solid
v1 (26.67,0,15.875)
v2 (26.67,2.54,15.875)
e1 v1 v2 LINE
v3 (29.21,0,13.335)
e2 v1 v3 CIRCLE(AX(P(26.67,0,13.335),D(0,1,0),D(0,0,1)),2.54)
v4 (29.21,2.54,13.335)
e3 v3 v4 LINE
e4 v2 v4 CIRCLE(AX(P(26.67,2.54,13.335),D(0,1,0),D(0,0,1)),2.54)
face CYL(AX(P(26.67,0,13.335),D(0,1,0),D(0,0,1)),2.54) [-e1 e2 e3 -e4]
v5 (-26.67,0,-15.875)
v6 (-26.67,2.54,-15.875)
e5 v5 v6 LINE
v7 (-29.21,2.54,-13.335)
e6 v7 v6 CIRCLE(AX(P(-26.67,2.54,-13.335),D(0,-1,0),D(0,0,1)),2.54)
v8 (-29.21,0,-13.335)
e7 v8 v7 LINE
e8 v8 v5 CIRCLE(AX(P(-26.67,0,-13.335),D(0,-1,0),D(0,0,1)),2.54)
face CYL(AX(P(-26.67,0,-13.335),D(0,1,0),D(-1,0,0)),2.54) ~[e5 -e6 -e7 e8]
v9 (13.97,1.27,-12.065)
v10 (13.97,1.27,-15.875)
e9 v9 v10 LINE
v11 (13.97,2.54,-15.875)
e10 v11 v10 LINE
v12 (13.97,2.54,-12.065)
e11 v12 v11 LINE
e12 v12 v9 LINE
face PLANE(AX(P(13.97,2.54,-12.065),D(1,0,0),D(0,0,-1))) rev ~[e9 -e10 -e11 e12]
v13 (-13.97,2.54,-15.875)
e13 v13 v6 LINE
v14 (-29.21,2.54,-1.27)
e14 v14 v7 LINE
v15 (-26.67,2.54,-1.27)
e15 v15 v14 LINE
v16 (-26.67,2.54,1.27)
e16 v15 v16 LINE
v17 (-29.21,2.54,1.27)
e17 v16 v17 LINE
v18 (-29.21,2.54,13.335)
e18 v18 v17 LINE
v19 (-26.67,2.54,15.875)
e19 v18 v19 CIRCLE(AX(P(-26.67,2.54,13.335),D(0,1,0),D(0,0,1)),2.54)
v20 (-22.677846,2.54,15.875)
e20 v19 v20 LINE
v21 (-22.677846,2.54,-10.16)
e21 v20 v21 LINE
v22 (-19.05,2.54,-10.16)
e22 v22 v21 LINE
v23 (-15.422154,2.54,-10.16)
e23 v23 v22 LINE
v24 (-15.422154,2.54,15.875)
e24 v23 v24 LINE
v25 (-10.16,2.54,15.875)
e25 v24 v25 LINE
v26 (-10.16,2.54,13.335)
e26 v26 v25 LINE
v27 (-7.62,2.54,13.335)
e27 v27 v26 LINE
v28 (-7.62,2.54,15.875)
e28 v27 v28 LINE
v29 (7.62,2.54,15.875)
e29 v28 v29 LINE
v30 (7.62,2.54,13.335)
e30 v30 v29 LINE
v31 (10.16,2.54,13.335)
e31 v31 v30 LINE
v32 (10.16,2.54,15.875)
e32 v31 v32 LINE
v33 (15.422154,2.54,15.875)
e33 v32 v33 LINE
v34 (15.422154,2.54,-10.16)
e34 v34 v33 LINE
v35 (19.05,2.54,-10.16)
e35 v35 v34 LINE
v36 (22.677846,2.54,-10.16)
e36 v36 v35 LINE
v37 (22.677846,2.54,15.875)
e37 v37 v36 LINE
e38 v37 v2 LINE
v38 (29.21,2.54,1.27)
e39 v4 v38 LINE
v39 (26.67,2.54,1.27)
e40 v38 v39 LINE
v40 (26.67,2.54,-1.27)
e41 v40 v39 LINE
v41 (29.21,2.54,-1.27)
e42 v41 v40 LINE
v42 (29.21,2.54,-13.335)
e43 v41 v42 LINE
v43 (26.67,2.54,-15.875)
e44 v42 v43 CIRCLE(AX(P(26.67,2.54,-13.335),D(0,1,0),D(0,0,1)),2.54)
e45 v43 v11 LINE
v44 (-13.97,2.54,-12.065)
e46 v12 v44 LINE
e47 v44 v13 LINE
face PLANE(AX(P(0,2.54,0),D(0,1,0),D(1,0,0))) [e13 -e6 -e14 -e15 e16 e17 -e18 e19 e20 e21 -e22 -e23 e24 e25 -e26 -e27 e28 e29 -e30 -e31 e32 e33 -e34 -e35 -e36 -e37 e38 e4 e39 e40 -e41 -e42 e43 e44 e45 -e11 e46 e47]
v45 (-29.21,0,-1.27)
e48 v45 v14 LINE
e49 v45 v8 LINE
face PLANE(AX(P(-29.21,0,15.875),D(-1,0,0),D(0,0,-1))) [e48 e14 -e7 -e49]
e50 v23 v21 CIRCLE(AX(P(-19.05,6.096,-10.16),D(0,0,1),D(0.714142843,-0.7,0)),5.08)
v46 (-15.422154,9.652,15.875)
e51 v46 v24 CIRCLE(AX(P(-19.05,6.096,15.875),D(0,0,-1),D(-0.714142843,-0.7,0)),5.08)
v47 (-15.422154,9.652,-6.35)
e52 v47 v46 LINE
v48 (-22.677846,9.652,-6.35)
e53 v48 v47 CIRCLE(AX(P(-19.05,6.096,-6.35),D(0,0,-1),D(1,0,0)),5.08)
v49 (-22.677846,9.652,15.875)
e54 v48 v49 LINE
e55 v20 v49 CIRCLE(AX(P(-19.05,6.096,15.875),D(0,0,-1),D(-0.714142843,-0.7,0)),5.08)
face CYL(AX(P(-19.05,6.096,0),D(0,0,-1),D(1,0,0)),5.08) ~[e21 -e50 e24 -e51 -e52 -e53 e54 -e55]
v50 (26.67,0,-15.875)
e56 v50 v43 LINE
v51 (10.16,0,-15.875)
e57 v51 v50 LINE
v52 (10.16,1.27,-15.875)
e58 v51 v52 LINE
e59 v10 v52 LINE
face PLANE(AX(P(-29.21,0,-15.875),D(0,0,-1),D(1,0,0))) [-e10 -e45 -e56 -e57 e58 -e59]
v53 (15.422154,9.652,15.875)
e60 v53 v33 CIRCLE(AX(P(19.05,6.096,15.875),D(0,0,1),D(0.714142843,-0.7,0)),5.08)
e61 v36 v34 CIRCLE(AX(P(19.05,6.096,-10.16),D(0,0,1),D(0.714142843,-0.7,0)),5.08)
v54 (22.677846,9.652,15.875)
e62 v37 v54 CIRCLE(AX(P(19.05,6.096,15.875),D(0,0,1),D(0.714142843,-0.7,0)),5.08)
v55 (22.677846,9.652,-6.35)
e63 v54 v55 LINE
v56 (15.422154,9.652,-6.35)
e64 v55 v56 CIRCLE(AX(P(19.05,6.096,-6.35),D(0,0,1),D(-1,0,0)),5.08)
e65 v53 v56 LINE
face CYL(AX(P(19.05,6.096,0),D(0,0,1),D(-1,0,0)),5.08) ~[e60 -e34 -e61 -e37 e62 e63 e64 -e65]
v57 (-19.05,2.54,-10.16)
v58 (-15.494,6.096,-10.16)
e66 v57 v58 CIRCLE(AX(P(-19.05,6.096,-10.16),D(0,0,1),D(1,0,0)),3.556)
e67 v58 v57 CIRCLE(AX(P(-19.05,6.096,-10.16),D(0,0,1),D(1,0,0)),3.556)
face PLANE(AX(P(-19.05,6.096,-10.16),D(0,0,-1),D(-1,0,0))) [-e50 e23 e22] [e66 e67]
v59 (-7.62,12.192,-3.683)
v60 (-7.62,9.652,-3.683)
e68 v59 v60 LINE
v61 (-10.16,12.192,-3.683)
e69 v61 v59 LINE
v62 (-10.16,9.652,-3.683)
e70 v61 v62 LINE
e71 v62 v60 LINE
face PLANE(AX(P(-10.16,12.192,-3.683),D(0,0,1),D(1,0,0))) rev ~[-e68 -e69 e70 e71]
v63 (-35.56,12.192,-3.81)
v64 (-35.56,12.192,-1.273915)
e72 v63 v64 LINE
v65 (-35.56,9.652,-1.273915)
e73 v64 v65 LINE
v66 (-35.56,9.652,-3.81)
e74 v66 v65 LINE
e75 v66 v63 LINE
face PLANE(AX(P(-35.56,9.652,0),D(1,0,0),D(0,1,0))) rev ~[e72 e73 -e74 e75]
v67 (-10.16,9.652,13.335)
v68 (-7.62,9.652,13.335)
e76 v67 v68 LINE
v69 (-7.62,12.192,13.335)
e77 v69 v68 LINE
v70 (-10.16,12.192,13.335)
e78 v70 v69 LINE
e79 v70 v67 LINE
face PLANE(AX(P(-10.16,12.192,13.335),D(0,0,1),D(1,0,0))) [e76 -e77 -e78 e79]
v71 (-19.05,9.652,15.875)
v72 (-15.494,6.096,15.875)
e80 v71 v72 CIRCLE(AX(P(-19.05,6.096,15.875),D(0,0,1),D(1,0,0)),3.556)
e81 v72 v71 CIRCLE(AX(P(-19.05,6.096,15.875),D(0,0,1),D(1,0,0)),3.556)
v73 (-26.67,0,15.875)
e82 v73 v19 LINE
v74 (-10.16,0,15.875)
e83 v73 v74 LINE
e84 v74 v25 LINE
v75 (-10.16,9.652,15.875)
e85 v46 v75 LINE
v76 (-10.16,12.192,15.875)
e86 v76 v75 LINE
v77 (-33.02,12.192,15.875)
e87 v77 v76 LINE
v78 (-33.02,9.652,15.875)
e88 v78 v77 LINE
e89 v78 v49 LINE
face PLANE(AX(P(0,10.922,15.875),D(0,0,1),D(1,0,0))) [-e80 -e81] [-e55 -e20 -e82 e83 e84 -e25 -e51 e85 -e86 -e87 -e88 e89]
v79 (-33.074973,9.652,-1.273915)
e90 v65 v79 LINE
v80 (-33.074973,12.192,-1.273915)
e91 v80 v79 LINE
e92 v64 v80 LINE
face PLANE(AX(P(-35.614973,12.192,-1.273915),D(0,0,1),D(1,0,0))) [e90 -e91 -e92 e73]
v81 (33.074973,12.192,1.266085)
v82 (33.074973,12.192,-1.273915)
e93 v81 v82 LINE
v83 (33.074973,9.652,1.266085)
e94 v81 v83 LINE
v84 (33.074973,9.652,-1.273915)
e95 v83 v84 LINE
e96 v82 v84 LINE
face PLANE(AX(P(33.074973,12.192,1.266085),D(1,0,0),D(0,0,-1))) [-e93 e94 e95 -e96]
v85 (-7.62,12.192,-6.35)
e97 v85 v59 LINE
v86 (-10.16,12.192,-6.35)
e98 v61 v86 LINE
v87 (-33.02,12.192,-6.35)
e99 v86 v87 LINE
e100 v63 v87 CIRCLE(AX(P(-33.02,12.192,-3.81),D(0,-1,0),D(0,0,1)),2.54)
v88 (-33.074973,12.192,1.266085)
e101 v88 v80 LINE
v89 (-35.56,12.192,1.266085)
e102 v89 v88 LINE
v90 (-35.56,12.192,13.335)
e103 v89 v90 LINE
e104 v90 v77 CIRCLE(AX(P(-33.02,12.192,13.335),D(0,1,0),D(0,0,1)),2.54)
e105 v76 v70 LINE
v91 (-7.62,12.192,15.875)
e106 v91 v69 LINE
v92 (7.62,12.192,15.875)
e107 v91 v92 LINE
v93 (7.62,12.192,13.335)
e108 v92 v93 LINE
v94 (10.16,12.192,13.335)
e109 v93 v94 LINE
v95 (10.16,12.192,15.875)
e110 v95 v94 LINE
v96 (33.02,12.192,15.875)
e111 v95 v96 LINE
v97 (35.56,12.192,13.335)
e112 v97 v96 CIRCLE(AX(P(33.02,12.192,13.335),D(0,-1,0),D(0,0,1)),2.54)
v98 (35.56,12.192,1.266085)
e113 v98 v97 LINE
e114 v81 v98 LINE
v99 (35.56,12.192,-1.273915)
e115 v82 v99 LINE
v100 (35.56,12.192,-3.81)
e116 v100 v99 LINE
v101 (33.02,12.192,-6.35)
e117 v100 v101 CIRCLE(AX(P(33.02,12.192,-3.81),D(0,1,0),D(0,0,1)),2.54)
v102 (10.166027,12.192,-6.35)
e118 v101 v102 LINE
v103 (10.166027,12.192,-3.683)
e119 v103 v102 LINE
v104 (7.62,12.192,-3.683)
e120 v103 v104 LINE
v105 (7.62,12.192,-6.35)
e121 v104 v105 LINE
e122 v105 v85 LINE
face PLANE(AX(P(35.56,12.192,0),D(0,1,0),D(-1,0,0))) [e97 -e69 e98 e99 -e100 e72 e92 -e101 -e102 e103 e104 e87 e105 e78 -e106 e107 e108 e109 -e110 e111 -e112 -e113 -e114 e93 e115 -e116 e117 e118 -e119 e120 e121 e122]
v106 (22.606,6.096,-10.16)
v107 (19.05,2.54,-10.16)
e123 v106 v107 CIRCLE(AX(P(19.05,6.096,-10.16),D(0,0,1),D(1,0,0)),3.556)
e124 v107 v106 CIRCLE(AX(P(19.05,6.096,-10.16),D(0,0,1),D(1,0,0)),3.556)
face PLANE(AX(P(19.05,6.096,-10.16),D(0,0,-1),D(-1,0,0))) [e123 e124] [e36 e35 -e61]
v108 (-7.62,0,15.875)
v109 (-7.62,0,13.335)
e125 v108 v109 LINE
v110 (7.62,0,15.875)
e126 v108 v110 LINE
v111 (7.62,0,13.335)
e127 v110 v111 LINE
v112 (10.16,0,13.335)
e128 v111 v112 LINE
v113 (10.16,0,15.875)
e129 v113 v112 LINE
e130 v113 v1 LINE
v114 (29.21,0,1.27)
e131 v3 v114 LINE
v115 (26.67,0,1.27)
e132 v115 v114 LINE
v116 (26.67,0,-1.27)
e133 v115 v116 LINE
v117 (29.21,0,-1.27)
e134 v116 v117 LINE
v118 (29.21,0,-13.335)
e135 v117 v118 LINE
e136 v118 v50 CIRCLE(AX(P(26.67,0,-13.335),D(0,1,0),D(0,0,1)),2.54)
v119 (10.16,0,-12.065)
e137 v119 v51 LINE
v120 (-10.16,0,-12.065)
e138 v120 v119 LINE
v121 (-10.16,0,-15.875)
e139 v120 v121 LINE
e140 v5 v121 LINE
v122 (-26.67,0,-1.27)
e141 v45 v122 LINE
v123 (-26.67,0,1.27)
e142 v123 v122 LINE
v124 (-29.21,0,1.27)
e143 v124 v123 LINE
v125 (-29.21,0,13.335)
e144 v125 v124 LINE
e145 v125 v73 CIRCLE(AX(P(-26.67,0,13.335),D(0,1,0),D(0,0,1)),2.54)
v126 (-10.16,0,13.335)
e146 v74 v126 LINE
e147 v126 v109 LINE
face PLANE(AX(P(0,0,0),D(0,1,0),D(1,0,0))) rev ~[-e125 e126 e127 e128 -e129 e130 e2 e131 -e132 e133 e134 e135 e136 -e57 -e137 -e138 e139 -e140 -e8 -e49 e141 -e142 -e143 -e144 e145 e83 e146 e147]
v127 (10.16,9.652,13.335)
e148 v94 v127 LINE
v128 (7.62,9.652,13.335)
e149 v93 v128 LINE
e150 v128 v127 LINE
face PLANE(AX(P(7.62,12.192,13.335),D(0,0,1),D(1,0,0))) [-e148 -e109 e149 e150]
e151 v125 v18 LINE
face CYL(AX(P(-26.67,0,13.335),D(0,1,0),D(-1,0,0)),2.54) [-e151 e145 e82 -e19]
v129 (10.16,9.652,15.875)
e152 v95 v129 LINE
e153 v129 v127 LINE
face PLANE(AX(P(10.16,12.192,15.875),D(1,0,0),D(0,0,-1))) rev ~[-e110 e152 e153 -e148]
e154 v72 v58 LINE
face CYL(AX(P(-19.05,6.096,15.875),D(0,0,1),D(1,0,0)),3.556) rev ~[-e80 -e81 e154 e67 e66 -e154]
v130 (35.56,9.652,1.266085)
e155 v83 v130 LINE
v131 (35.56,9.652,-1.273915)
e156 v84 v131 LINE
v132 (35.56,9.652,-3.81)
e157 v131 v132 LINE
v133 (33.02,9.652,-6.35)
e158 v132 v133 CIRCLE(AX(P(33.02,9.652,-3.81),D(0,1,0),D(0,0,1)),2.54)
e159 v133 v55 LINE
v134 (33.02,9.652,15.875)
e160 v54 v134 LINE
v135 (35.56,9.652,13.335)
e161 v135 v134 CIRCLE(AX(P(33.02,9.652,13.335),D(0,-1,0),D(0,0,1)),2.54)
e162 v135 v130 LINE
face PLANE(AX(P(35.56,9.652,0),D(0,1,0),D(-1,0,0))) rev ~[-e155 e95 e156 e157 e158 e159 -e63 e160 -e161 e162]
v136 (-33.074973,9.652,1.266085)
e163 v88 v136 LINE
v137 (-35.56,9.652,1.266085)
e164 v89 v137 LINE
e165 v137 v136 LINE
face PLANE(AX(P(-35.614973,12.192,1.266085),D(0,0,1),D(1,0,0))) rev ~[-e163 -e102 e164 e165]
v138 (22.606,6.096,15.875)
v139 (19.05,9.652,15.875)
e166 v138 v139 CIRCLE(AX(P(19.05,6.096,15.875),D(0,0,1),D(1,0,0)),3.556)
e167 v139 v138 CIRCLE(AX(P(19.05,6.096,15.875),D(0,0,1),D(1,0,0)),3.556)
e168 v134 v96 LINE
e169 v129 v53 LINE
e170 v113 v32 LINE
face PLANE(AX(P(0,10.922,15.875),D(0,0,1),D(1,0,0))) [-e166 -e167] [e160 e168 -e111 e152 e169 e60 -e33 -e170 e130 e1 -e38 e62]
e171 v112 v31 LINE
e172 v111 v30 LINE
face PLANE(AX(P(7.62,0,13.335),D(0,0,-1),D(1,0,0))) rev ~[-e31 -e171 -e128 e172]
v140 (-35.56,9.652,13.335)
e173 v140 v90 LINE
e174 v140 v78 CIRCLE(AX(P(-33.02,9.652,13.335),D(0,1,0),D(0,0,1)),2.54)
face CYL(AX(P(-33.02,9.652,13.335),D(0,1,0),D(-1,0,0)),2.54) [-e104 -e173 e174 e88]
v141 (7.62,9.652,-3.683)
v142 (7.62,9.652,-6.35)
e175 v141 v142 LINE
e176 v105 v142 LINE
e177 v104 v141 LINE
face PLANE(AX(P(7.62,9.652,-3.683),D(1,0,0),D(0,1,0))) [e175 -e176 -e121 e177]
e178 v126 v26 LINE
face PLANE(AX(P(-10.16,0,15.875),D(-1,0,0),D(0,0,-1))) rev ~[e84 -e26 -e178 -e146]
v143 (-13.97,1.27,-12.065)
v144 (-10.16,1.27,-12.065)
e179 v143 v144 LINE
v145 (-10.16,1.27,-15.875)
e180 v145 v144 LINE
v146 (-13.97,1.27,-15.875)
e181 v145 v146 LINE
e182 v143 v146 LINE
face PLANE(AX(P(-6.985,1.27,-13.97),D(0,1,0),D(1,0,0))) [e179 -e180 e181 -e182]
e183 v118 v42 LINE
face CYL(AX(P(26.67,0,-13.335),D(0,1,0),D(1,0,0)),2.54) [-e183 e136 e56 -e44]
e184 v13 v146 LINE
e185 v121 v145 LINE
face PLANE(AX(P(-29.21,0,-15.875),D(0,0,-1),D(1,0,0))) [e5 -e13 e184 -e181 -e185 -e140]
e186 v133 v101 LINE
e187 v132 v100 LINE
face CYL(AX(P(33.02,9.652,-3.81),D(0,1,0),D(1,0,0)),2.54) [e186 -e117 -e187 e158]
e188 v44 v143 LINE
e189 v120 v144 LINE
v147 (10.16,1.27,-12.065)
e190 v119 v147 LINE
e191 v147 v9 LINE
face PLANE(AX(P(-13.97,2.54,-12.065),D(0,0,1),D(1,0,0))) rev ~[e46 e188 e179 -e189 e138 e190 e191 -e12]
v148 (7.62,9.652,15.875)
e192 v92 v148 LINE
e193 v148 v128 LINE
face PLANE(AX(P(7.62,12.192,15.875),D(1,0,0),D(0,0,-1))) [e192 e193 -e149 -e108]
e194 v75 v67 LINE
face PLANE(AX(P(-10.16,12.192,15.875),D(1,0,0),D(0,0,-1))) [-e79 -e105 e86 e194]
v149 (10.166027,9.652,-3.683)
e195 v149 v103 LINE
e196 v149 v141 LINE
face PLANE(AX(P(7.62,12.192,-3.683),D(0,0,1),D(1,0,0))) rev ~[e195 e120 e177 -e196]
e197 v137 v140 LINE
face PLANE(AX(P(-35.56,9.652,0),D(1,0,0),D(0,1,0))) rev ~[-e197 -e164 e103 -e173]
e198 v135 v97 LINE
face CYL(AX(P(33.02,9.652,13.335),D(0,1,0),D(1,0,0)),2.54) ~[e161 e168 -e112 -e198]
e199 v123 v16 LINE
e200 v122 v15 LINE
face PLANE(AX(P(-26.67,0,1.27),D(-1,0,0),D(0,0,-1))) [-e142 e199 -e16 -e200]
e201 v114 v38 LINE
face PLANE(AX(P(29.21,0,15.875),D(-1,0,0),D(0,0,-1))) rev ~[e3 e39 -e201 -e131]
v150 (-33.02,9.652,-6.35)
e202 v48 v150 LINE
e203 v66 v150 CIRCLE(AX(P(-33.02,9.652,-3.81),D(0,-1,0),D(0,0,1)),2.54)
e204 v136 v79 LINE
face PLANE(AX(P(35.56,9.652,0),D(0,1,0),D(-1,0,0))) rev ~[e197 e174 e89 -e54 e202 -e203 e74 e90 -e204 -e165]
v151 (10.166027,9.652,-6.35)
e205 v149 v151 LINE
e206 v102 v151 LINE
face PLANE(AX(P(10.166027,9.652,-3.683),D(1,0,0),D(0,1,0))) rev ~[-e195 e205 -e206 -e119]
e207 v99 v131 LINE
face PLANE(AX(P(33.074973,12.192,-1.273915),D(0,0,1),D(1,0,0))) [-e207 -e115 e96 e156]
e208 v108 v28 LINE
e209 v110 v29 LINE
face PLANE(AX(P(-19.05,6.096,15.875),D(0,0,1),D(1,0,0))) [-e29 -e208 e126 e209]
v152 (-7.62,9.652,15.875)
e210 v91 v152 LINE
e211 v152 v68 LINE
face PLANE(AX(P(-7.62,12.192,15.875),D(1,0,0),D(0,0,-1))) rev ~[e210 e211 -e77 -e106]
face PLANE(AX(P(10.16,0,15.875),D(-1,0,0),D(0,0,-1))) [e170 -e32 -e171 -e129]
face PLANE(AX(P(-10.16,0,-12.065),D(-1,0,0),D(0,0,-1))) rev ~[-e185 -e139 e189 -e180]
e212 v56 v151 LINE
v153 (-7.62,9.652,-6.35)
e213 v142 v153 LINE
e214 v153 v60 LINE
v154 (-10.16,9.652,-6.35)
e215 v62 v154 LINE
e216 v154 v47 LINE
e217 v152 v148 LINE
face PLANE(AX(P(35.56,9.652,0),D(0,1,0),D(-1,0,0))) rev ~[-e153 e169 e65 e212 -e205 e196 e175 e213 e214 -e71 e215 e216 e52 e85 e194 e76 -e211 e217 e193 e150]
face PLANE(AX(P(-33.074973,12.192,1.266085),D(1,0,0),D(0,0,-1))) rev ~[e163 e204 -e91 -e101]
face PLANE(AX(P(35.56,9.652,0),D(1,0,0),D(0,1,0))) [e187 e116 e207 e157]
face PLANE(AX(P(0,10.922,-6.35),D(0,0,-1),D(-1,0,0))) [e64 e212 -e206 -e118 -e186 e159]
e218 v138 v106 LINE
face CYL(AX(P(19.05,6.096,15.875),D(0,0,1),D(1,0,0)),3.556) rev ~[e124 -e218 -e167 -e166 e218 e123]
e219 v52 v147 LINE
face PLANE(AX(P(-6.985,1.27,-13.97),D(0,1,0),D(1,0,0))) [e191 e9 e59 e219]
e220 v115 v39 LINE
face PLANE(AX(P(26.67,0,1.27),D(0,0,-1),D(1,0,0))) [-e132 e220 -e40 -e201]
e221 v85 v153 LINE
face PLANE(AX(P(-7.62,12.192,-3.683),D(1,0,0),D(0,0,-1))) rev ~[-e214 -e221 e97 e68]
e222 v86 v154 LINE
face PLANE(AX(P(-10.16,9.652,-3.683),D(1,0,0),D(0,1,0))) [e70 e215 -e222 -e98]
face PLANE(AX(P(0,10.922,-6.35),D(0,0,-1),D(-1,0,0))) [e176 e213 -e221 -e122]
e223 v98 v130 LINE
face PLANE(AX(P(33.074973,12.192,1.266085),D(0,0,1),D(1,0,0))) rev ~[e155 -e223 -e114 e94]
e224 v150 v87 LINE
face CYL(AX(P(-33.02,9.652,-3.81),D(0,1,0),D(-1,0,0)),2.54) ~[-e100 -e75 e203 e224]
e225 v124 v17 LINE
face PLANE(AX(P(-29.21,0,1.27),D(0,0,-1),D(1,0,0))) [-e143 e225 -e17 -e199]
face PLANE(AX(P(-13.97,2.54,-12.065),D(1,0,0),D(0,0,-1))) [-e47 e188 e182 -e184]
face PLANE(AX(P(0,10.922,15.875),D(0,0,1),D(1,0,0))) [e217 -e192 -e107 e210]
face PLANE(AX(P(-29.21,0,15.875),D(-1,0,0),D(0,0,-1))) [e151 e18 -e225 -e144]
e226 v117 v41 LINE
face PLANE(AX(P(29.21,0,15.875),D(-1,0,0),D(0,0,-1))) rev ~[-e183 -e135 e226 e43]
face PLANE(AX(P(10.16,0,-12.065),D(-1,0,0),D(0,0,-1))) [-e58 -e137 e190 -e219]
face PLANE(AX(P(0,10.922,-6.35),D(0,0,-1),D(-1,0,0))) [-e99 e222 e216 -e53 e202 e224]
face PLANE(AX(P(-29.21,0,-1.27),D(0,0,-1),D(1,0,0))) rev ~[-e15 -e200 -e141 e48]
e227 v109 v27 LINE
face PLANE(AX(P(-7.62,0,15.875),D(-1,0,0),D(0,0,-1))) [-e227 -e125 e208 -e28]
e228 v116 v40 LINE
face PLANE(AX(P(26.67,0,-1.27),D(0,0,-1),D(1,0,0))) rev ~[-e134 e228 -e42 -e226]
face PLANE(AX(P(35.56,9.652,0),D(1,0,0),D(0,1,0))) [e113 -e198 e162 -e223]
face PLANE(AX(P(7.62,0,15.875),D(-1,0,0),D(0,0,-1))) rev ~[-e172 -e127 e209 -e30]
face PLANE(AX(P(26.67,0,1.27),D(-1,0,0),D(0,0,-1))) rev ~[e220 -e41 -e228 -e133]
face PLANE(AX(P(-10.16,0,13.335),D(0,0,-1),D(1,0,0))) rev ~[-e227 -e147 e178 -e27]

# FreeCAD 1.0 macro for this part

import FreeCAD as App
import Part
import Sketcher
from FreeCAD import Vector
Q = App.Units.Quantity


def edges_at(feature, points):
    """Names of the edges that pass closest to the given points."""
    edges = feature.Shape.Edges
    near = lambda p: min(range(len(edges)), key=lambda i: edges[i].distToShape(Part.Vertex(*p))[0])
    return sorted({f"Edge{near(p) + 1}" for p in points})

doc = App.newDocument("Part")
params = doc.addObject("Spreadsheet::Sheet", "Params")
for row, (alias, value) in enumerate([
    ("sketch1_width", "2.3 in"),
    ("sketch1_height", "1.25 in"),
    ("pad1_length", "0.1 in"),
    ("fillet_radius", "0.1 in"),
    ("sketch2_diameter", "0.4 in"),
    ("pad2_length", "0.625 in"),
    ("sketch3_diameter", "0.4 in"),
    ("pad3_length", "0.4 in"),
    ("sketch4_diameter", "0.28 in"),
    ("sketch5_width", "1.1 in"),
    ("sketch5_height", "0.15 in"),
    ("pocket2_length", "0.05 in"),
    ("sketch6_width", "0.1 in"),
    ("sketch6_width2", "0.8 in"),
    ("sketch6_height", "0.15 in"),
    ("sketch7_width", "2.8 in"),
    ("sketch7_height", "0.1 in"),
    ("pad4_length", "0.625 in"),
    ("sketch8_width", "2.8 in"),
    ("sketch8_height", "0.1 in"),
    ("pad5_length", "0.25 in"),
    ("fillet2_radius", "0.1 in"),
    ("sketch9_width", "0.1 in"),
    ("pocket4_length", "0.1 in"),
    ("sketch10_width", "0.1 in"),
], start=1):
    params.set(f"A{row}", alias)
    params.set(f"B{row}", "=" + value)
    params.setAlias(f"B{row}", alias)

body = doc.addObject("PartDesign::Body", "Body")

sketch1 = body.newObject("Sketcher::SketchObject", "Sketch")
sketch1.AttachmentSupport = (doc.getObject("XZ_Plane"), [""])
sketch1.MapMode = "FlatFace"
sketch1.addGeometry(Part.LineSegment(Vector(-29, -16, 0), Vector(-29, 16, 0)), False)
sketch1.addGeometry(Part.LineSegment(Vector(-29, 16, 0), Vector(29, 16, 0)), False)
sketch1.addGeometry(Part.LineSegment(Vector(29, 16, 0), Vector(29, -16, 0)), False)
sketch1.addGeometry(Part.LineSegment(Vector(29, -16, 0), Vector(-29, -16, 0)), False)
sketch1.addConstraint(Sketcher.Constraint("Coincident", 0, 2, 1, 1))
sketch1.addConstraint(Sketcher.Constraint("Coincident", 1, 2, 2, 1))
sketch1.addConstraint(Sketcher.Constraint("Coincident", 2, 2, 3, 1))
sketch1.addConstraint(Sketcher.Constraint("Coincident", 3, 2, 0, 1))
sketch1.addConstraint(Sketcher.Constraint("Vertical", 0))
sketch1.addConstraint(Sketcher.Constraint("Horizontal", 1))
sketch1.addConstraint(Sketcher.Constraint("Vertical", 2))
sketch1.addConstraint(Sketcher.Constraint("Horizontal", 3))
sketch1.addConstraint(Sketcher.Constraint("Symmetric", 0, 2, 2, 2, -1, 1))
sketch1.addConstraint(Sketcher.Constraint("DistanceX", 1, 1, 1, 2, Q("2.3 in")))
sketch1.addConstraint(Sketcher.Constraint("DistanceY", 0, 1, 0, 2, Q("1.25 in")))
sketch1.setExpression("Constraints[9]", "Params.sketch1_width")
sketch1.setExpression("Constraints[10]", "Params.sketch1_height")
pad1 = body.newObject("PartDesign::Pad", "Pad")
pad1.Profile = sketch1
pad1.setExpression("Length", "Params.pad1_length")
pad1.Reversed = True
doc.recompute()

fillet = body.newObject("PartDesign::Fillet", "Fillet")
fillet.Base = (pad1, edges_at(pad1, [
    (29.21, 1.27, 15.875),
    (-29.21, 1.27, 15.875),
    (-29.21, 1.27, -15.875),
    (29.21, 1.27, -15.875),
]))
fillet.setExpression("Radius", "Params.fillet_radius")

sketch2 = body.newObject("Sketcher::SketchObject", "Sketch001")
sketch2.AttachmentSupport = (doc.getObject("XY_Plane"), [""])
sketch2.MapMode = "FlatFace"
sketch2.addGeometry(Part.Circle(Vector(-19, 6, 0), Vector(0, 0, 1), 5), False)
sketch2.addGeometry(Part.Circle(Vector(19, 6, 0), Vector(0, 0, 1), 5), False)
sketch2.addConstraint(Sketcher.Constraint("Equal", 0, 1))
sketch2.addConstraint(Sketcher.Constraint("Symmetric", 0, 3, 1, 3, -2))
sketch2.addConstraint(Sketcher.Constraint("Diameter", 0, Q("0.4 in")))
sketch2.addConstraint(Sketcher.Constraint("DistanceX", 0, 3, 1, 3, Q("1.5 in")))
sketch2.addConstraint(Sketcher.Constraint("DistanceY", -1, 1, 0, 3, Q("0.24 in")))
sketch2.setExpression("Constraints[2]", "Params.sketch2_diameter")
pad2 = body.newObject("PartDesign::Pad", "Pad001")
pad2.Profile = sketch2
pad2.setExpression("Length", "Params.pad2_length")

sketch3 = body.newObject("Sketcher::SketchObject", "Sketch002")
sketch3.AttachmentSupport = (doc.getObject("XY_Plane"), [""])
sketch3.MapMode = "FlatFace"
sketch3.addGeometry(Part.Circle(Vector(19, 6, 0), Vector(0, 0, 1), 5), False)
sketch3.addGeometry(Part.Circle(Vector(-19, 6, 0), Vector(0, 0, 1), 5), False)
sketch3.addConstraint(Sketcher.Constraint("Equal", 0, 1))
sketch3.addConstraint(Sketcher.Constraint("Symmetric", 0, 3, 1, 3, -2))
sketch3.addConstraint(Sketcher.Constraint("Diameter", 0, Q("0.4 in")))
sketch3.addConstraint(Sketcher.Constraint("DistanceX", 1, 3, 0, 3, Q("1.5 in")))
sketch3.addConstraint(Sketcher.Constraint("DistanceY", -1, 1, 0, 3, Q("0.24 in")))
sketch3.setExpression("Constraints[2]", "Params.sketch3_diameter")
pad3 = body.newObject("PartDesign::Pad", "Pad002")
pad3.Profile = sketch3
pad3.setExpression("Length", "Params.pad3_length")
pad3.Reversed = True

sketch4 = body.newObject("Sketcher::SketchObject", "Sketch003")
sketch4.AttachmentSupport = (doc.getObject("XY_Plane"), [""])
sketch4.MapMode = "FlatFace"
sketch4.AttachmentOffset = App.Placement(Vector(0, 0, 0.625 * 25.4), App.Rotation())
sketch4.addGeometry(Part.Circle(Vector(-19.1, 6.1, 0), Vector(0, 0, 1), 3.6), False)
sketch4.addGeometry(Part.Circle(Vector(19.1, 6.1, 0), Vector(0, 0, 1), 3.6), False)
sketch4.addConstraint(Sketcher.Constraint("Equal", 0, 1))
sketch4.addConstraint(Sketcher.Constraint("Symmetric", 0, 3, 1, 3, -2))
sketch4.addConstraint(Sketcher.Constraint("Diameter", 0, Q("0.28 in")))
sketch4.addConstraint(Sketcher.Constraint("DistanceX", 0, 3, 1, 3, Q("1.5 in")))
sketch4.addConstraint(Sketcher.Constraint("DistanceY", -1, 1, 0, 3, Q("0.24 in")))
sketch4.setExpression("Constraints[2]", "Params.sketch4_diameter")
pocket1 = body.newObject("PartDesign::Pocket", "Pocket")
pocket1.Profile = sketch4
pocket1.Type = "ThroughAll"

sketch5 = body.newObject("Sketcher::SketchObject", "Sketch004")
sketch5.AttachmentSupport = (doc.getObject("XZ_Plane"), [""])
sketch5.MapMode = "FlatFace"
sketch5.AttachmentOffset = App.Placement(Vector(0, 0, -0.1 * 25.4), App.Rotation())
sketch5.addGeometry(Part.LineSegment(Vector(-14, -15.9, 0), Vector(-14, -12.1, 0)), False)
sketch5.addGeometry(Part.LineSegment(Vector(-14, -12.1, 0), Vector(14, -12.1, 0)), False)
sketch5.addGeometry(Part.LineSegment(Vector(14, -12.1, 0), Vector(14, -15.9, 0)), False)
sketch5.addGeometry(Part.LineSegment(Vector(14, -15.9, 0), Vector(-14, -15.9, 0)), False)
sketch5.addConstraint(Sketcher.Constraint("Coincident", 0, 2, 1, 1))
sketch5.addConstraint(Sketcher.Constraint("Coincident", 1, 2, 2, 1))
sketch5.addConstraint(Sketcher.Constraint("Coincident", 2, 2, 3, 1))
sketch5.addConstraint(Sketcher.Constraint("Coincident", 3, 2, 0, 1))
sketch5.addConstraint(Sketcher.Constraint("Vertical", 0))
sketch5.addConstraint(Sketcher.Constraint("Horizontal", 1))
sketch5.addConstraint(Sketcher.Constraint("Vertical", 2))
sketch5.addConstraint(Sketcher.Constraint("Horizontal", 3))
sketch5.addConstraint(Sketcher.Constraint("DistanceX", 1, 1, 1, 2, Q("1.1 in")))
sketch5.addConstraint(Sketcher.Constraint("DistanceY", 0, 1, 0, 2, Q("0.15 in")))
sketch5.addConstraint(Sketcher.Constraint("DistanceX", 0, 2, -1, 1, Q("0.55 in")))
sketch5.addConstraint(Sketcher.Constraint("DistanceY", 0, 2, -1, 1, Q("0.475 in")))
sketch5.setExpression("Constraints[8]", "Params.sketch5_width")
sketch5.setExpression("Constraints[9]", "Params.sketch5_height")
pocket2 = body.newObject("PartDesign::Pocket", "Pocket001")
pocket2.Profile = sketch5
pocket2.setExpression("Length", "Params.pocket2_length")
pocket2.Reversed = True

sketch6 = body.newObject("Sketcher::SketchObject", "Sketch005")
sketch6.AttachmentSupport = (doc.getObject("XZ_Plane"), [""])
sketch6.MapMode = "FlatFace"
sketch6.addGeometry(Part.LineSegment(Vector(-29.2, -1.3, 0), Vector(-29.2, 1.3, 0)), False)
sketch6.addGeometry(Part.LineSegment(Vector(-29.2, 1.3, 0), Vector(-26.7, 1.3, 0)), False)
sketch6.addGeometry(Part.LineSegment(Vector(-26.7, 1.3, 0), Vector(-26.7, -1.3, 0)), False)
sketch6.addGeometry(Part.LineSegment(Vector(-26.7, -1.3, 0), Vector(-29.2, -1.3, 0)), False)
sketch6.addGeometry(Part.LineSegment(Vector(26.7, -1.3, 0), Vector(26.7, 1.3, 0)), False)
sketch6.addGeometry(Part.LineSegment(Vector(26.7, 1.3, 0), Vector(29.2, 1.3, 0)), False)
sketch6.addGeometry(Part.LineSegment(Vector(29.2, 1.3, 0), Vector(29.2, -1.3, 0)), False)
sketch6.addGeometry(Part.LineSegment(Vector(29.2, -1.3, 0), Vector(26.7, -1.3, 0)), False)
sketch6.addGeometry(Part.LineSegment(Vector(-10.2, -15.9, 0), Vector(-10.2, -12.1, 0)), False)
sketch6.addGeometry(Part.LineSegment(Vector(-10.2, -12.1, 0), Vector(10.2, -12.1, 0)), False)
sketch6.addGeometry(Part.LineSegment(Vector(10.2, -12.1, 0), Vector(10.2, -15.9, 0)), False)
sketch6.addGeometry(Part.LineSegment(Vector(10.2, -15.9, 0), Vector(-10.2, -15.9, 0)), False)
sketch6.addGeometry(Part.LineSegment(Vector(-10.2, 13.3, 0), Vector(-10.2, 15.9, 0)), False)
sketch6.addGeometry(Part.LineSegment(Vector(-10.2, 15.9, 0), Vector(-7.6, 15.9, 0)), False)
sketch6.addGeometry(Part.LineSegment(Vector(-7.6, 15.9, 0), Vector(-7.6, 13.3, 0)), False)
sketch6.addGeometry(Part.LineSegment(Vector(-7.6, 13.3, 0), Vector(-10.2, 13.3, 0)), False)
sketch6.addGeometry(Part.LineSegment(Vector(7.6, 13.3, 0), Vector(7.6, 15.9, 0)), False)
sketch6.addGeometry(Part.LineSegment(Vector(7.6, 15.9, 0), Vector(10.2, 15.9, 0)), False)
sketch6.addGeometry(Part.LineSegment(Vector(10.2, 15.9, 0), Vector(10.2, 13.3, 0)), False)
sketch6.addGeometry(Part.LineSegment(Vector(10.2, 13.3, 0), Vector(7.6, 13.3, 0)), False)
sketch6.addConstraint(Sketcher.Constraint("Coincident", 0, 2, 1, 1))
sketch6.addConstraint(Sketcher.Constraint("Coincident", 1, 2, 2, 1))
sketch6.addConstraint(Sketcher.Constraint("Coincident", 2, 2, 3, 1))
sketch6.addConstraint(Sketcher.Constraint("Coincident", 3, 2, 0, 1))
sketch6.addConstraint(Sketcher.Constraint("Coincident", 4, 2, 5, 1))
sketch6.addConstraint(Sketcher.Constraint("Coincident", 5, 2, 6, 1))
sketch6.addConstraint(Sketcher.Constraint("Coincident", 6, 2, 7, 1))
sketch6.addConstraint(Sketcher.Constraint("Coincident", 7, 2, 4, 1))
sketch6.addConstraint(Sketcher.Constraint("Coincident", 8, 2, 9, 1))
sketch6.addConstraint(Sketcher.Constraint("Coincident", 9, 2, 10, 1))
sketch6.addConstraint(Sketcher.Constraint("Coincident", 10, 2, 11, 1))
sketch6.addConstraint(Sketcher.Constraint("Coincident", 11, 2, 8, 1))
sketch6.addConstraint(Sketcher.Constraint("Coincident", 12, 2, 13, 1))
sketch6.addConstraint(Sketcher.Constraint("Coincident", 13, 2, 14, 1))
sketch6.addConstraint(Sketcher.Constraint("Coincident", 14, 2, 15, 1))
sketch6.addConstraint(Sketcher.Constraint("Coincident", 15, 2, 12, 1))
sketch6.addConstraint(Sketcher.Constraint("Coincident", 16, 2, 17, 1))
sketch6.addConstraint(Sketcher.Constraint("Coincident", 17, 2, 18, 1))
sketch6.addConstraint(Sketcher.Constraint("Coincident", 18, 2, 19, 1))
sketch6.addConstraint(Sketcher.Constraint("Coincident", 19, 2, 16, 1))
sketch6.addConstraint(Sketcher.Constraint("Vertical", 0))
sketch6.addConstraint(Sketcher.Constraint("Horizontal", 1))
sketch6.addConstraint(Sketcher.Constraint("Vertical", 2))
sketch6.addConstraint(Sketcher.Constraint("Horizontal", 3))
sketch6.addConstraint(Sketcher.Constraint("Vertical", 4))
sketch6.addConstraint(Sketcher.Constraint("Horizontal", 5))
sketch6.addConstraint(Sketcher.Constraint("Vertical", 6))
sketch6.addConstraint(Sketcher.Constraint("Horizontal", 7))
sketch6.addConstraint(Sketcher.Constraint("Vertical", 8))
sketch6.addConstraint(Sketcher.Constraint("Horizontal", 9))
sketch6.addConstraint(Sketcher.Constraint("Vertical", 10))
sketch6.addConstraint(Sketcher.Constraint("Horizontal", 11))
sketch6.addConstraint(Sketcher.Constraint("Vertical", 12))
sketch6.addConstraint(Sketcher.Constraint("Horizontal", 13))
sketch6.addConstraint(Sketcher.Constraint("Vertical", 14))
sketch6.addConstraint(Sketcher.Constraint("Horizontal", 15))
sketch6.addConstraint(Sketcher.Constraint("Vertical", 16))
sketch6.addConstraint(Sketcher.Constraint("Horizontal", 17))
sketch6.addConstraint(Sketcher.Constraint("Vertical", 18))
sketch6.addConstraint(Sketcher.Constraint("Horizontal", 19))
sketch6.addConstraint(Sketcher.Constraint("Symmetric", 2, 2, 4, 2, -1, 1))
sketch6.addConstraint(Sketcher.Constraint("Symmetric", 0, 2, 6, 2, -1, 1))
sketch6.addConstraint(Sketcher.Constraint("Symmetric", 10, 2, 12, 2, -1, 1))
sketch6.addConstraint(Sketcher.Constraint("Symmetric", 11, 2, 17, 2, -1, 1))
sketch6.addConstraint(Sketcher.Constraint("Symmetric", 15, 2, 18, 2, -2))
sketch6.addConstraint(Sketcher.Constraint("Horizontal", 1, 2, 4, 2))
sketch6.addConstraint(Sketcher.Constraint("Equal", 7, 13))
sketch6.addConstraint(Sketcher.Constraint("Equal", 15, 17))
sketch6.addConstraint(Sketcher.Constraint("Equal", 19, 0))
sketch6.addConstraint(Sketcher.Constraint("Equal", 6, 12))
sketch6.addConstraint(Sketcher.Constraint("DistanceX", 1, 1, 1, 2, Q("0.1 in")))
sketch6.addConstraint(Sketcher.Constraint("DistanceX", 9, 1, 9, 2, Q("0.8 in")))
sketch6.addConstraint(Sketcher.Constraint("DistanceY", 8, 1, 8, 2, Q("0.15 in")))
sketch6.addConstraint(Sketcher.Constraint("DistanceX", 1, 2, 4, 2, Q("2.1 in")))
sketch6.addConstraint(Sketcher.Constraint("DistanceY", 8, 2, 12, 2, Q("1.1 in")))
sketch6.setExpression("Constraints[50]", "Params.sketch6_width")
sketch6.setExpression("Constraints[51]", "Params.sketch6_width2")
sketch6.setExpression("Constraints[52]", "Params.sketch6_height")
pocket3 = body.newObject("PartDesign::Pocket", "Pocket002")
pocket3.Profile = sketch6
pocket3.Type = "ThroughAll"

sketch7 = body.newObject("Sketcher::SketchObject", "Sketch006")
sketch7.AttachmentSupport = (doc.getObject("XY_Plane"), [""])
sketch7.MapMode = "FlatFace"
sketch7.addGeometry(Part.LineSegment(Vector(-35.6, 12.2, 0), Vector(-35.6, 9.7, 0)), False)
sketch7.addGeometry(Part.LineSegment(Vector(-35.6, 9.7, 0), Vector(35.6, 9.7, 0)), False)
sketch7.addGeometry(Part.LineSegment(Vector(35.6, 9.7, 0), Vector(35.6, 12.2, 0)), False)
sketch7.addGeometry(Part.LineSegment(Vector(35.6, 12.2, 0), Vector(-35.6, 12.2, 0)), False)
sketch7.addConstraint(Sketcher.Constraint("Coincident", 0, 2, 1, 1))
sketch7.addConstraint(Sketcher.Constraint("Coincident", 1, 2, 2, 1))
sketch7.addConstraint(Sketcher.Constraint("Coincident", 2, 2, 3, 1))
sketch7.addConstraint(Sketcher.Constraint("Coincident", 3, 2, 0, 1))
sketch7.addConstraint(Sketcher.Constraint("Vertical", 0))
sketch7.addConstraint(Sketcher.Constraint("Horizontal", 1))
sketch7.addConstraint(Sketcher.Constraint("Vertical", 2))
sketch7.addConstraint(Sketcher.Constraint("Horizontal", 3))
sketch7.addConstraint(Sketcher.Constraint("DistanceX", 1, 1, 1, 2, Q("2.8 in")))
sketch7.addConstraint(Sketcher.Constraint("DistanceY", 0, 2, 0, 1, Q("0.1 in")))
sketch7.addConstraint(Sketcher.Constraint("DistanceX", 0, 2, -1, 1, Q("1.4 in")))
sketch7.addConstraint(Sketcher.Constraint("DistanceY", -1, 1, 0, 2, Q("0.38 in")))
sketch7.setExpression("Constraints[8]", "Params.sketch7_width")
sketch7.setExpression("Constraints[9]", "Params.sketch7_height")
pad4 = body.newObject("PartDesign::Pad", "Pad003")
pad4.Profile = sketch7
pad4.setExpression("Length", "Params.pad4_length")

sketch8 = body.newObject("Sketcher::SketchObject", "Sketch007")
sketch8.AttachmentSupport = (doc.getObject("XY_Plane"), [""])
sketch8.MapMode = "FlatFace"
sketch8.addGeometry(Part.LineSegment(Vector(35.6, 12.2, 0), Vector(35.6, 9.7, 0)), False)
sketch8.addGeometry(Part.LineSegment(Vector(35.6, 9.7, 0), Vector(-35.6, 9.7, 0)), False)
sketch8.addGeometry(Part.LineSegment(Vector(-35.6, 9.7, 0), Vector(-35.6, 12.2, 0)), False)
sketch8.addGeometry(Part.LineSegment(Vector(-35.6, 12.2, 0), Vector(35.6, 12.2, 0)), False)
sketch8.addConstraint(Sketcher.Constraint("Coincident", 0, 2, 1, 1))
sketch8.addConstraint(Sketcher.Constraint("Coincident", 1, 2, 2, 1))
sketch8.addConstraint(Sketcher.Constraint("Coincident", 2, 2, 3, 1))
sketch8.addConstraint(Sketcher.Constraint("Coincident", 3, 2, 0, 1))
sketch8.addConstraint(Sketcher.Constraint("Vertical", 0))
sketch8.addConstraint(Sketcher.Constraint("Horizontal", 1))
sketch8.addConstraint(Sketcher.Constraint("Vertical", 2))
sketch8.addConstraint(Sketcher.Constraint("Horizontal", 3))
sketch8.addConstraint(Sketcher.Constraint("DistanceX", 1, 2, 1, 1, Q("2.8 in")))
sketch8.addConstraint(Sketcher.Constraint("DistanceY", 0, 2, 0, 1, Q("0.1 in")))
sketch8.addConstraint(Sketcher.Constraint("DistanceX", -1, 1, 0, 2, Q("1.4 in")))
sketch8.addConstraint(Sketcher.Constraint("DistanceY", -1, 1, 0, 2, Q("0.38 in")))
sketch8.setExpression("Constraints[8]", "Params.sketch8_width")
sketch8.setExpression("Constraints[9]", "Params.sketch8_height")
pad5 = body.newObject("PartDesign::Pad", "Pad004")
pad5.Profile = sketch8
pad5.setExpression("Length", "Params.pad5_length")
pad5.Reversed = True
doc.recompute()

fillet2 = body.newObject("PartDesign::Fillet", "Fillet001")
fillet2.Base = (pad5, edges_at(pad5, [
    (-35.56, 10.922, 15.875),
    (35.56, 10.922, 15.875),
    (-35.56, 10.922, -6.35),
    (35.56, 10.922, -6.35),
]))
fillet2.setExpression("Radius", "Params.fillet2_radius")

sketch9 = body.newObject("Sketcher::SketchObject", "Sketch008")
sketch9.AttachmentSupport = (doc.getObject("XZ_Plane"), [""])
sketch9.MapMode = "FlatFace"
sketch9.AttachmentOffset = App.Placement(Vector(0, 0, -0.48 * 25.4), App.Rotation())
sketch9.addGeometry(Part.LineSegment(Vector(-35.6, -1.3, 0), Vector(-35.6, 1.3, 0)), False)
sketch9.addGeometry(Part.LineSegment(Vector(-35.6, 1.3, 0), Vector(-33.1, 1.3, 0)), False)
sketch9.addGeometry(Part.LineSegment(Vector(-33.1, 1.3, 0), Vector(-33.1, -1.3, 0)), False)
sketch9.addGeometry(Part.LineSegment(Vector(-33.1, -1.3, 0), Vector(-35.6, -1.3, 0)), False)
sketch9.addGeometry(Part.LineSegment(Vector(7.6, 13.3, 0), Vector(7.6, 15.9, 0)), False)
sketch9.addGeometry(Part.LineSegment(Vector(7.6, 15.9, 0), Vector(10.2, 15.9, 0)), False)
sketch9.addGeometry(Part.LineSegment(Vector(10.2, 15.9, 0), Vector(10.2, 13.3, 0)), False)
sketch9.addGeometry(Part.LineSegment(Vector(10.2, 13.3, 0), Vector(7.6, 13.3, 0)), False)
sketch9.addGeometry(Part.LineSegment(Vector(-10.2, 13.3, 0), Vector(-10.2, 15.9, 0)), False)
sketch9.addGeometry(Part.LineSegment(Vector(-10.2, 15.9, 0), Vector(-7.6, 15.9, 0)), False)
sketch9.addGeometry(Part.LineSegment(Vector(-7.6, 15.9, 0), Vector(-7.6, 13.3, 0)), False)
sketch9.addGeometry(Part.LineSegment(Vector(-7.6, 13.3, 0), Vector(-10.2, 13.3, 0)), False)
sketch9.addGeometry(Part.LineSegment(Vector(33.1, -1.3, 0), Vector(33.1, 1.3, 0)), False)
sketch9.addGeometry(Part.LineSegment(Vector(33.1, 1.3, 0), Vector(35.6, 1.3, 0)), False)
sketch9.addGeometry(Part.LineSegment(Vector(35.6, 1.3, 0), Vector(35.6, -1.3, 0)), False)
sketch9.addGeometry(Part.LineSegment(Vector(35.6, -1.3, 0), Vector(33.1, -1.3, 0)), False)
sketch9.addGeometry(Part.LineSegment(Vector(7.6, -6.2, 0), Vector(7.6, -3.7, 0)), False)
sketch9.addGeometry(Part.LineSegment(Vector(7.6, -3.7, 0), Vector(10.2, -3.7, 0)), False)
sketch9.addGeometry(Part.LineSegment(Vector(10.2, -3.7, 0), Vector(10.2, -6.2, 0)), False)
sketch9.addGeometry(Part.LineSegment(Vector(10.2, -6.2, 0), Vector(7.6, -6.2, 0)), False)
sketch9.addGeometry(Part.LineSegment(Vector(-10.2, -6.2, 0), Vector(-10.2, -3.7, 0)), False)
sketch9.addGeometry(Part.LineSegment(Vector(-10.2, -3.7, 0), Vector(-7.6, -3.7, 0)), False)
sketch9.addGeometry(Part.LineSegment(Vector(-7.6, -3.7, 0), Vector(-7.6, -6.2, 0)), False)
sketch9.addGeometry(Part.LineSegment(Vector(-7.6, -6.2, 0), Vector(-10.2, -6.2, 0)), False)
sketch9.addConstraint(Sketcher.Constraint("Coincident", 0, 2, 1, 1))
sketch9.addConstraint(Sketcher.Constraint("Coincident", 1, 2, 2, 1))
sketch9.addConstraint(Sketcher.Constraint("Coincident", 2, 2, 3, 1))
sketch9.addConstraint(Sketcher.Constraint("Coincident", 3, 2, 0, 1))
sketch9.addConstraint(Sketcher.Constraint("Coincident", 4, 2, 5, 1))
sketch9.addConstraint(Sketcher.Constraint("Coincident", 5, 2, 6, 1))
sketch9.addConstraint(Sketcher.Constraint("Coincident", 6, 2, 7, 1))
sketch9.addConstraint(Sketcher.Constraint("Coincident", 7, 2, 4, 1))
sketch9.addConstraint(Sketcher.Constraint("Coincident", 8, 2, 9, 1))
sketch9.addConstraint(Sketcher.Constraint("Coincident", 9, 2, 10, 1))
sketch9.addConstraint(Sketcher.Constraint("Coincident", 10, 2, 11, 1))
sketch9.addConstraint(Sketcher.Constraint("Coincident", 11, 2, 8, 1))
sketch9.addConstraint(Sketcher.Constraint("Coincident", 12, 2, 13, 1))
sketch9.addConstraint(Sketcher.Constraint("Coincident", 13, 2, 14, 1))
sketch9.addConstraint(Sketcher.Constraint("Coincident", 14, 2, 15, 1))
sketch9.addConstraint(Sketcher.Constraint("Coincident", 15, 2, 12, 1))
sketch9.addConstraint(Sketcher.Constraint("Coincident", 16, 2, 17, 1))
sketch9.addConstraint(Sketcher.Constraint("Coincident", 17, 2, 18, 1))
sketch9.addConstraint(Sketcher.Constraint("Coincident", 18, 2, 19, 1))
sketch9.addConstraint(Sketcher.Constraint("Coincident", 19, 2, 16, 1))
sketch9.addConstraint(Sketcher.Constraint("Coincident", 20, 2, 21, 1))
sketch9.addConstraint(Sketcher.Constraint("Coincident", 21, 2, 22, 1))
sketch9.addConstraint(Sketcher.Constraint("Coincident", 22, 2, 23, 1))
sketch9.addConstraint(Sketcher.Constraint("Coincident", 23, 2, 20, 1))
sketch9.addConstraint(Sketcher.Constraint("Vertical", 0))
sketch9.addConstraint(Sketcher.Constraint("Horizontal", 1))
sketch9.addConstraint(Sketcher.Constraint("Vertical", 2))
sketch9.addConstraint(Sketcher.Constraint("Horizontal", 3))
sketch9.addConstraint(Sketcher.Constraint("Vertical", 4))
sketch9.addConstraint(Sketcher.Constraint("Horizontal", 5))
sketch9.addConstraint(Sketcher.Constraint("Vertical", 6))
sketch9.addConstraint(Sketcher.Constraint("Horizontal", 7))
sketch9.addConstraint(Sketcher.Constraint("Vertical", 8))
sketch9.addConstraint(Sketcher.Constraint("Horizontal", 9))
sketch9.addConstraint(Sketcher.Constraint("Vertical", 10))
sketch9.addConstraint(Sketcher.Constraint("Horizontal", 11))
sketch9.addConstraint(Sketcher.Constraint("Vertical", 12))
sketch9.addConstraint(Sketcher.Constraint("Horizontal", 13))
sketch9.addConstraint(Sketcher.Constraint("Vertical", 14))
sketch9.addConstraint(Sketcher.Constraint("Horizontal", 15))
sketch9.addConstraint(Sketcher.Constraint("Vertical", 16))
sketch9.addConstraint(Sketcher.Constraint("Horizontal", 17))
sketch9.addConstraint(Sketcher.Constraint("Vertical", 18))
sketch9.addConstraint(Sketcher.Constraint("Horizontal", 19))
sketch9.addConstraint(Sketcher.Constraint("Vertical", 20))
sketch9.addConstraint(Sketcher.Constraint("Horizontal", 21))
sketch9.addConstraint(Sketcher.Constraint("Vertical", 22))
sketch9.addConstraint(Sketcher.Constraint("Horizontal", 23))
sketch9.addConstraint(Sketcher.Constraint("Symmetric", 5, 2, 8, 2, -2))
sketch9.addConstraint(Sketcher.Constraint("Symmetric", 7, 2, 10, 2, -2))
sketch9.addConstraint(Sketcher.Constraint("Symmetric", 1, 2, 12, 2, -2))
sketch9.addConstraint(Sketcher.Constraint("Symmetric", 3, 2, 14, 2, -2))
sketch9.addConstraint(Sketcher.Constraint("Symmetric", 17, 2, 20, 2, -2))
sketch9.addConstraint(Sketcher.Constraint("Symmetric", 19, 2, 22, 2, -2))
sketch9.addConstraint(Sketcher.Constraint("Vertical", 7, 2, 16, 2))
sketch9.addConstraint(Sketcher.Constraint("Vertical", 6, 2, 17, 2))
sketch9.addConstraint(Sketcher.Constraint("Equal", 3, 5))
sketch9.addConstraint(Sketcher.Constraint("Equal", 23, 0))
sketch9.addConstraint(Sketcher.Constraint("Equal", 2, 4))
sketch9.addConstraint(Sketcher.Constraint("Equal", 14, 16))
sketch9.addConstraint(Sketcher.Constraint("DistanceX", 1, 1, 1, 2, Q("0.1 in")))
sketch9.addConstraint(Sketcher.Constraint("DistanceX", -1, 1, 4, 2, Q("0.3 in")))
sketch9.addConstraint(Sketcher.Constraint("DistanceY", 16, 2, 7, 2, Q("0.67 in")))
sketch9.addConstraint(Sketcher.Constraint("DistanceY", -1, 1, 4, 2, Q("0.625 in")))
sketch9.addConstraint(Sketcher.Constraint("DistanceX", 0, 2, -1, 1, Q("35.614973 mm")))
sketch9.addConstraint(Sketcher.Constraint("DistanceY", -1, 1, 0, 2, Q("1.266085 mm")))
sketch9.setExpression("Constraints[60]", "Params.sketch9_width")
pocket4 = body.newObject("PartDesign::Pocket", "Pocket003")
pocket4.Profile = sketch9
pocket4.setExpression("Length", "Params.pocket4_length")
pocket4.Reversed = True

sketch10 = body.newObject("Sketcher::SketchObject", "Sketch009")
sketch10.AttachmentSupport = (doc.getObject("XY_Plane"), [""])
sketch10.MapMode = "FlatFace"
sketch10.AttachmentOffset = App.Placement(Vector(0, 0, -0.145 * 25.4), App.Rotation())
sketch10.addGeometry(Part.LineSegment(Vector(-7.6, 12.2, 0), Vector(-7.6, 9.7, 0)), False)
sketch10.addGeometry(Part.LineSegment(Vector(-7.6, 9.7, 0), Vector(-10.2, 9.7, 0)), False)
sketch10.addGeometry(Part.LineSegment(Vector(-10.2, 9.7, 0), Vector(-10.2, 12.2, 0)), False)
sketch10.addGeometry(Part.LineSegment(Vector(-10.2, 12.2, 0), Vector(-7.6, 12.2, 0)), False)
sketch10.addGeometry(Part.LineSegment(Vector(10.2, 12.2, 0), Vector(10.2, 9.7, 0)), False)
sketch10.addGeometry(Part.LineSegment(Vector(10.2, 9.7, 0), Vector(7.6, 9.7, 0)), False)
sketch10.addGeometry(Part.LineSegment(Vector(7.6, 9.7, 0), Vector(7.6, 12.2, 0)), False)
sketch10.addGeometry(Part.LineSegment(Vector(7.6, 12.2, 0), Vector(10.2, 12.2, 0)), False)
sketch10.addConstraint(Sketcher.Constraint("Coincident", 0, 2, 1, 1))
sketch10.addConstraint(Sketcher.Constraint("Coincident", 1, 2, 2, 1))
sketch10.addConstraint(Sketcher.Constraint("Coincident", 2, 2, 3, 1))
sketch10.addConstraint(Sketcher.Constraint("Coincident", 3, 2, 0, 1))
sketch10.addConstraint(Sketcher.Constraint("Coincident", 4, 2, 5, 1))
sketch10.addConstraint(Sketcher.Constraint("Coincident", 5, 2, 6, 1))
sketch10.addConstraint(Sketcher.Constraint("Coincident", 6, 2, 7, 1))
sketch10.addConstraint(Sketcher.Constraint("Coincident", 7, 2, 4, 1))
sketch10.addConstraint(Sketcher.Constraint("Vertical", 0))
sketch10.addConstraint(Sketcher.Constraint("Horizontal", 1))
sketch10.addConstraint(Sketcher.Constraint("Vertical", 2))
sketch10.addConstraint(Sketcher.Constraint("Horizontal", 3))
sketch10.addConstraint(Sketcher.Constraint("Vertical", 4))
sketch10.addConstraint(Sketcher.Constraint("Horizontal", 5))
sketch10.addConstraint(Sketcher.Constraint("Vertical", 6))
sketch10.addConstraint(Sketcher.Constraint("Horizontal", 7))
sketch10.addConstraint(Sketcher.Constraint("Symmetric", 0, 2, 5, 2, -2))
sketch10.addConstraint(Sketcher.Constraint("Horizontal", 3, 2, 6, 2))
sketch10.addConstraint(Sketcher.Constraint("Equal", 3, 0))
sketch10.addConstraint(Sketcher.Constraint("DistanceX", 1, 2, 1, 1, Q("0.1 in")))
sketch10.addConstraint(Sketcher.Constraint("DistanceX", 0, 2, -1, 1, Q("0.3 in")))
sketch10.addConstraint(Sketcher.Constraint("DistanceY", -1, 1, 0, 2, Q("0.38 in")))
sketch10.addConstraint(Sketcher.Constraint("DistanceX", 5, 2, 5, 1, Q("2.546027 mm")))
sketch10.setExpression("Constraints[19]", "Params.sketch10_width")
pocket5 = body.newObject("PartDesign::Pocket", "Pocket004")
pocket5.Profile = sketch10
pocket5.Type = "ThroughAll"

doc.recompute()
